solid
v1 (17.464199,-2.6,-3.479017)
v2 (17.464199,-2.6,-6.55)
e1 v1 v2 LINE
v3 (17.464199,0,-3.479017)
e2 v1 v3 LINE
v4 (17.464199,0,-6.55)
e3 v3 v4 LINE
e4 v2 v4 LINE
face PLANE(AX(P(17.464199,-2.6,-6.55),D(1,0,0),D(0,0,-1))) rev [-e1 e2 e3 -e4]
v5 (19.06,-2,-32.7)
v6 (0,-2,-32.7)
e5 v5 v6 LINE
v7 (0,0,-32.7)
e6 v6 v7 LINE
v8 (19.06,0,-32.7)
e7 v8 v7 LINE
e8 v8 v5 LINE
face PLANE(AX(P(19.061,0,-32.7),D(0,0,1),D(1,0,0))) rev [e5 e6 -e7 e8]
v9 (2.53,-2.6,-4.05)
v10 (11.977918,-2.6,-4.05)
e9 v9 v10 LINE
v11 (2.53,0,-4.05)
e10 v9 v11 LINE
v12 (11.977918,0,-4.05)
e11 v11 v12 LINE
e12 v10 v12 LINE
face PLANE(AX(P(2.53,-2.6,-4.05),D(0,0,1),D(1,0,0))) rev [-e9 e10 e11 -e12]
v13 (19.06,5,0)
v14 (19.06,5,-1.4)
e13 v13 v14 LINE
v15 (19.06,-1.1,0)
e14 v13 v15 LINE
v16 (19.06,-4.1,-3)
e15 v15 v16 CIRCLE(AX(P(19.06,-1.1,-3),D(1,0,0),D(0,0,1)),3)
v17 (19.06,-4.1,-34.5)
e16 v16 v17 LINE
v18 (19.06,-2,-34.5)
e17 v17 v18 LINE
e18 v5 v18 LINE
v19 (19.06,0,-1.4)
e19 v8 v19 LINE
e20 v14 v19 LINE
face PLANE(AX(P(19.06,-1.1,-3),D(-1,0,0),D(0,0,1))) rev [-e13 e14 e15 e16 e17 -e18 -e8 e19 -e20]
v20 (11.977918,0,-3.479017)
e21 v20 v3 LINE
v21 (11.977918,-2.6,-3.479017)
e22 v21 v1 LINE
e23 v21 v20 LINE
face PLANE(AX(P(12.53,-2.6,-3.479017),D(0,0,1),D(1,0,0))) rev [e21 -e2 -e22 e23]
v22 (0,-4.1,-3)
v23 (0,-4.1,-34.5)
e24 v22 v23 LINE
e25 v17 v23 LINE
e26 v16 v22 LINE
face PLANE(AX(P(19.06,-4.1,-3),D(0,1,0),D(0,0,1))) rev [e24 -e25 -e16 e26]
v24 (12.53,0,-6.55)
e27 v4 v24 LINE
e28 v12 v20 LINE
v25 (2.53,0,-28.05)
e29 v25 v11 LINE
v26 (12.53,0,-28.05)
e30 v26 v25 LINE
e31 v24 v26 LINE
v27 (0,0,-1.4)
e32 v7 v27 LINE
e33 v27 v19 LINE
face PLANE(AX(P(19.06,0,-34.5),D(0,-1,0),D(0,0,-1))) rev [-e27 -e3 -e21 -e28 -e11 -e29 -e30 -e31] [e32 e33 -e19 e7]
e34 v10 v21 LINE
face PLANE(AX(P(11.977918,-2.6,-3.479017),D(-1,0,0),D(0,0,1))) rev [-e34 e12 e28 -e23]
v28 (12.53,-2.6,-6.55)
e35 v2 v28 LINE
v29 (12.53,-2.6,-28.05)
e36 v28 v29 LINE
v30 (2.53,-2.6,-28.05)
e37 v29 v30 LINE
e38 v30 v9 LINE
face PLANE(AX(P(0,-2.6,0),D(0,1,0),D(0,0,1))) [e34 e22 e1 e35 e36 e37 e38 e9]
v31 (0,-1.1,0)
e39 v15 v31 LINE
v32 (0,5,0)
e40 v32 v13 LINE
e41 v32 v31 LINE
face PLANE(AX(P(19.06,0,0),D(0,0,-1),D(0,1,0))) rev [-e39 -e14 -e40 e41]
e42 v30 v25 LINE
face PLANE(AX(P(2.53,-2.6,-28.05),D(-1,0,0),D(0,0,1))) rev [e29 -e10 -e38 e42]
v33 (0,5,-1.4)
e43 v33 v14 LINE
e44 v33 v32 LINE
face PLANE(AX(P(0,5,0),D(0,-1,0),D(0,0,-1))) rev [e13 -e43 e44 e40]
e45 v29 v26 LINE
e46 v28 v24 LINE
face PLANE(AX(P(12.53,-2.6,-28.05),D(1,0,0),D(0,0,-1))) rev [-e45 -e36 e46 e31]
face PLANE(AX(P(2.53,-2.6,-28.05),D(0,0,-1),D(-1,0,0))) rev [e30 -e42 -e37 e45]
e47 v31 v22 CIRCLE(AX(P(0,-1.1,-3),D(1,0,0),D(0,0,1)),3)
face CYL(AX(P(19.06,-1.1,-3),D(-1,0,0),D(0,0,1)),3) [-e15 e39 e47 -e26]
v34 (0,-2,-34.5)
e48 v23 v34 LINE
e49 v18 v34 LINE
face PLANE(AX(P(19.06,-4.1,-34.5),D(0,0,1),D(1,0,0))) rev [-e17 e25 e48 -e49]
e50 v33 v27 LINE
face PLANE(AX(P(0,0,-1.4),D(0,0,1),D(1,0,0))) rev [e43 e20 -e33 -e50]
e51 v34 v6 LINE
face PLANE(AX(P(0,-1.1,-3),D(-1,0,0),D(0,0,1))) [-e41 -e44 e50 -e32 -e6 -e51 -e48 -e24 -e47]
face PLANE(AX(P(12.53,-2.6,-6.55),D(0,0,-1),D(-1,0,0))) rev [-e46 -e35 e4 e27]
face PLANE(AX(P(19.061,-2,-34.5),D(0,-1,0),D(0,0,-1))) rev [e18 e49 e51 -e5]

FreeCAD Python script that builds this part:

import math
import FreeCAD as App
import Part
import Sketcher

V = App.Vector

doc = App.newDocument("Part")
params = doc.addObject("Spreadsheet::Sheet", "Params")
for row, (alias, value) in enumerate([
    ("sketch1_radius", "3 mm"),
    ("sketch1_width", "1.1 mm"),
    ("sketch1_height", "31.5 mm"),
    ("pad1_length", "19.06 mm"),
    ("sketch2_width", "10 mm"),
    ("sketch2_height", "24 mm"),
    ("sketch2_height2", "21.5 mm"),
    ("pocket1_length", "2.6 mm"),
    ("sketch3_height", "1.9 mm"),
    ("sketch3_width", "19.06 mm"),
    ("pad2_length", "5 mm"),
    ("sketch4_width", "2 mm"),
    ("sketch4_height", "1.8 mm"),
    ("sketch5_width", "5 mm"),
    ("sketch5_height", "0.5 mm"),
], start=1):
    params.set(f"A{row}", alias)
    params.set(f"B{row}", "=" + value)
    params.setAlias(f"B{row}", alias)

body = doc.addObject("PartDesign::Body", "Body")

# Sketch on YZ plane
sketch1 = body.newObject("Sketcher::SketchObject", "Sketch")
sketch1.AttachmentSupport = (doc.getObject("YZ_Plane"), [""])
sketch1.MapMode = "FlatFace"
sketch1.addGeometry([
    Part.LineSegment(V(0, 0, 0), V(-1.1, 0, 0)),  # 0
    Part.ArcOfCircle(Part.Circle(V(-1.1, -3, 0), V(0, 0, 1), 3), math.radians(90), math.radians(180)),  # 1
    Part.LineSegment(V(-4.1, -3, 0), V(-4.1, -34.5, 0)),  # 2
    Part.LineSegment(V(-4.1, -34.5, 0), V(0, -34.5, 0)),  # 3
    Part.LineSegment(V(0, -34.5, 0), V(0, 0, 0)),  # 4
], False)
sketch1.addConstraint([
    Sketcher.Constraint("Tangent", 0, 2, 1, 1),
    Sketcher.Constraint("Tangent", 1, 2, 2, 1),
    Sketcher.Constraint("Coincident", 2, 2, 3, 1),
    Sketcher.Constraint("Coincident", 3, 2, 4, 1),
    Sketcher.Constraint("Coincident", 4, 2, 0, 1),
    Sketcher.Constraint("Horizontal", 0),
    Sketcher.Constraint("Vertical", 2),
    Sketcher.Constraint("Horizontal", 3),
    Sketcher.Constraint("Vertical", 4),
    Sketcher.Constraint("Coincident", 4, 2, -1, 1),
    Sketcher.Constraint("Radius", 1, 3.0),
    Sketcher.Constraint("DistanceX", 0, 2, 0, 1, 1.1),
    Sketcher.Constraint("DistanceY", 2, 2, 2, 1, 31.5),
])
sketch1.setExpression("Constraints[10]", "Params.sketch1_radius")
sketch1.setExpression("Constraints[11]", "Params.sketch1_width")
sketch1.setExpression("Constraints[12]", "Params.sketch1_height")
pad1 = body.newObject("PartDesign::Pad", "Pad")
pad1.Profile = sketch1
pad1.setExpression("Length", "Params.pad1_length")

# Sketch on XZ plane
sketch2 = body.newObject("Sketcher::SketchObject", "Sketch001")
sketch2.AttachmentSupport = (doc.getObject("XZ_Plane"), [""])
sketch2.MapMode = "FlatFace"
sketch2.addGeometry([
    Part.LineSegment(V(12.5, -28.1, 0), V(2.5, -28.1, 0)),  # 0
    Part.LineSegment(V(2.5, -28.1, 0), V(2.5, -4, 0)),  # 1
    Part.LineSegment(V(2.5, -4, 0), V(12, -4, 0)),  # 2
    Part.LineSegment(V(12, -4, 0), V(12, -3.5, 0)),  # 3
    Part.LineSegment(V(12, -3.5, 0), V(17.5, -3.5, 0)),  # 4
    Part.LineSegment(V(17.5, -3.5, 0), V(17.5, -6.5, 0)),  # 5
    Part.LineSegment(V(17.5, -6.5, 0), V(12.5, -6.5, 0)),  # 6
    Part.LineSegment(V(12.5, -6.5, 0), V(12.5, -28.1, 0)),  # 7
], False)
sketch2.addConstraint([
    Sketcher.Constraint("Coincident", 0, 2, 1, 1),
    Sketcher.Constraint("Coincident", 1, 2, 2, 1),
    Sketcher.Constraint("Coincident", 2, 2, 3, 1),
    Sketcher.Constraint("Coincident", 3, 2, 4, 1),
    Sketcher.Constraint("Coincident", 4, 2, 5, 1),
    Sketcher.Constraint("Coincident", 5, 2, 6, 1),
    Sketcher.Constraint("Coincident", 6, 2, 7, 1),
    Sketcher.Constraint("Coincident", 7, 2, 0, 1),
    Sketcher.Constraint("Horizontal", 0),
    Sketcher.Constraint("Vertical", 1),
    Sketcher.Constraint("Horizontal", 2),
    Sketcher.Constraint("Vertical", 3),
    Sketcher.Constraint("Horizontal", 4),
    Sketcher.Constraint("Vertical", 5),
    Sketcher.Constraint("Horizontal", 6),
    Sketcher.Constraint("Vertical", 7),
    Sketcher.Constraint("DistanceX", 0, 2, 0, 1, 10.0),
    Sketcher.Constraint("DistanceY", 1, 1, 1, 2, 24.0),
    Sketcher.Constraint("DistanceY", 7, 2, 7, 1, 21.5),
    Sketcher.Constraint("DistanceX", -1, 1, 0, 2, 2.53),
    Sketcher.Constraint("DistanceY", 0, 2, -1, 1, 28.05),
    Sketcher.Constraint("DistanceX", 6, 2, 6, 1, 4.934199),
    Sketcher.Constraint("DistanceX", 2, 1, 2, 2, 9.447918),
    Sketcher.Constraint("DistanceY", 3, 1, 3, 2, 0.570983),
])
sketch2.setExpression("Constraints[16]", "Params.sketch2_width")
sketch2.setExpression("Constraints[17]", "Params.sketch2_height")
sketch2.setExpression("Constraints[18]", "Params.sketch2_height2")
pocket1 = body.newObject("PartDesign::Pocket", "Pocket")
pocket1.Profile = sketch2
pocket1.setExpression("Length", "Params.pocket1_length")
pocket1.Reversed = True

# Sketch on XZ plane
sketch3 = body.newObject("Sketcher::SketchObject", "Sketch002")
sketch3.AttachmentSupport = (doc.getObject("XZ_Plane"), [""])
sketch3.MapMode = "FlatFace"
sketch3.addGeometry([
    Part.LineSegment(V(0, -1.9, 0), V(0, 0, 0)),
    Part.LineSegment(V(0, 0, 0), V(19.1, 0, 0)),
    Part.LineSegment(V(19.1, 0, 0), V(19.1, -1.9, 0)),
    Part.LineSegment(V(19.1, -1.9, 0), V(0, -1.9, 0)),
], False)
sketch3.addConstraint([
    Sketcher.Constraint("Coincident", 0, 2, 1, 1),
    Sketcher.Constraint("Coincident", 1, 2, 2, 1),
    Sketcher.Constraint("Coincident", 2, 2, 3, 1),
    Sketcher.Constraint("Coincident", 3, 2, 0, 1),
    Sketcher.Constraint("Vertical", 0),
    Sketcher.Constraint("Horizontal", 1),
    Sketcher.Constraint("Vertical", 2),
    Sketcher.Constraint("Horizontal", 3),
    Sketcher.Constraint("Coincident", 0, 2, -1, 1),
    Sketcher.Constraint("DistanceY", 0, 1, 0, 2, 1.9),
    Sketcher.Constraint("DistanceX", 1, 1, 1, 2, 19.06),
])
sketch3.setExpression("Constraints[9]", "Params.sketch3_height")
sketch3.setExpression("Constraints[10]", "Params.sketch3_width")
pad2 = body.newObject("PartDesign::Pad", "Pad001")
pad2.Profile = sketch3
pad2.setExpression("Length", "Params.pad2_length")
pad2.Reversed = True

# Sketch on YZ plane
sketch4 = body.newObject("Sketcher::SketchObject", "Sketch003")
sketch4.AttachmentSupport = (doc.getObject("YZ_Plane"), [""])
sketch4.MapMode = "FlatFace"
sketch4.addGeometry([
    Part.LineSegment(V(0, -34.5, 0), V(-2, -34.5, 0)),
    Part.LineSegment(V(-2, -34.5, 0), V(-2, -32.7, 0)),
    Part.LineSegment(V(-2, -32.7, 0), V(0, -32.7, 0)),
    Part.LineSegment(V(0, -32.7, 0), V(0, -34.5, 0)),
], False)
sketch4.addConstraint([
    Sketcher.Constraint("Coincident", 0, 2, 1, 1),
    Sketcher.Constraint("Coincident", 1, 2, 2, 1),
    Sketcher.Constraint("Coincident", 2, 2, 3, 1),
    Sketcher.Constraint("Coincident", 3, 2, 0, 1),
    Sketcher.Constraint("Horizontal", 0),
    Sketcher.Constraint("Vertical", 1),
    Sketcher.Constraint("Horizontal", 2),
    Sketcher.Constraint("Vertical", 3),
    Sketcher.Constraint("PointOnObject", 2, 2, -2),
    Sketcher.Constraint("DistanceX", 0, 2, 0, 1, 2.0),
    Sketcher.Constraint("DistanceY", 1, 1, 1, 2, 1.8),
    Sketcher.Constraint("DistanceY", 0, 2, -1, 1, 34.5),
])
sketch4.setExpression("Constraints[9]", "Params.sketch4_width")
sketch4.setExpression("Constraints[10]", "Params.sketch4_height")
pocket2 = body.newObject("PartDesign::Pocket", "Pocket001")
pocket2.Profile = sketch4
pocket2.Type = "UpToFirst"
pocket2.Reversed = True

# Sketch on YZ plane
sketch5 = body.newObject("Sketcher::SketchObject", "Sketch004")
sketch5.AttachmentSupport = (doc.getObject("YZ_Plane"), [""])
sketch5.MapMode = "FlatFace"
sketch5.AttachmentOffset = App.Placement(V(0, 0, 19.06), App.Rotation())
sketch5.addGeometry([
    Part.LineSegment(V(5, -1.4, 0), V(0, -1.4, 0)),
    Part.LineSegment(V(0, -1.4, 0), V(0, -1.9, 0)),
    Part.LineSegment(V(0, -1.9, 0), V(5, -1.9, 0)),
    Part.LineSegment(V(5, -1.9, 0), V(5, -1.4, 0)),
], False)
sketch5.addConstraint([
    Sketcher.Constraint("Coincident", 0, 2, 1, 1),
    Sketcher.Constraint("Coincident", 1, 2, 2, 1),
    Sketcher.Constraint("Coincident", 2, 2, 3, 1),
    Sketcher.Constraint("Coincident", 3, 2, 0, 1),
    Sketcher.Constraint("Horizontal", 0),
    Sketcher.Constraint("Vertical", 1),
    Sketcher.Constraint("Horizontal", 2),
    Sketcher.Constraint("Vertical", 3),
    Sketcher.Constraint("PointOnObject", 0, 2, -2),
    Sketcher.Constraint("DistanceX", 0, 2, 0, 1, 5.0),
    Sketcher.Constraint("DistanceY", 1, 2, 1, 1, 0.5),
    Sketcher.Constraint("DistanceY", 0, 2, -1, 1, 1.4),
])
sketch5.setExpression("Constraints[9]", "Params.sketch5_width")
sketch5.setExpression("Constraints[10]", "Params.sketch5_height")
pocket3 = body.newObject("PartDesign::Pocket", "Pocket002")
pocket3.Profile = sketch5
pocket3.Type = "ThroughAll"

doc.recompute()
